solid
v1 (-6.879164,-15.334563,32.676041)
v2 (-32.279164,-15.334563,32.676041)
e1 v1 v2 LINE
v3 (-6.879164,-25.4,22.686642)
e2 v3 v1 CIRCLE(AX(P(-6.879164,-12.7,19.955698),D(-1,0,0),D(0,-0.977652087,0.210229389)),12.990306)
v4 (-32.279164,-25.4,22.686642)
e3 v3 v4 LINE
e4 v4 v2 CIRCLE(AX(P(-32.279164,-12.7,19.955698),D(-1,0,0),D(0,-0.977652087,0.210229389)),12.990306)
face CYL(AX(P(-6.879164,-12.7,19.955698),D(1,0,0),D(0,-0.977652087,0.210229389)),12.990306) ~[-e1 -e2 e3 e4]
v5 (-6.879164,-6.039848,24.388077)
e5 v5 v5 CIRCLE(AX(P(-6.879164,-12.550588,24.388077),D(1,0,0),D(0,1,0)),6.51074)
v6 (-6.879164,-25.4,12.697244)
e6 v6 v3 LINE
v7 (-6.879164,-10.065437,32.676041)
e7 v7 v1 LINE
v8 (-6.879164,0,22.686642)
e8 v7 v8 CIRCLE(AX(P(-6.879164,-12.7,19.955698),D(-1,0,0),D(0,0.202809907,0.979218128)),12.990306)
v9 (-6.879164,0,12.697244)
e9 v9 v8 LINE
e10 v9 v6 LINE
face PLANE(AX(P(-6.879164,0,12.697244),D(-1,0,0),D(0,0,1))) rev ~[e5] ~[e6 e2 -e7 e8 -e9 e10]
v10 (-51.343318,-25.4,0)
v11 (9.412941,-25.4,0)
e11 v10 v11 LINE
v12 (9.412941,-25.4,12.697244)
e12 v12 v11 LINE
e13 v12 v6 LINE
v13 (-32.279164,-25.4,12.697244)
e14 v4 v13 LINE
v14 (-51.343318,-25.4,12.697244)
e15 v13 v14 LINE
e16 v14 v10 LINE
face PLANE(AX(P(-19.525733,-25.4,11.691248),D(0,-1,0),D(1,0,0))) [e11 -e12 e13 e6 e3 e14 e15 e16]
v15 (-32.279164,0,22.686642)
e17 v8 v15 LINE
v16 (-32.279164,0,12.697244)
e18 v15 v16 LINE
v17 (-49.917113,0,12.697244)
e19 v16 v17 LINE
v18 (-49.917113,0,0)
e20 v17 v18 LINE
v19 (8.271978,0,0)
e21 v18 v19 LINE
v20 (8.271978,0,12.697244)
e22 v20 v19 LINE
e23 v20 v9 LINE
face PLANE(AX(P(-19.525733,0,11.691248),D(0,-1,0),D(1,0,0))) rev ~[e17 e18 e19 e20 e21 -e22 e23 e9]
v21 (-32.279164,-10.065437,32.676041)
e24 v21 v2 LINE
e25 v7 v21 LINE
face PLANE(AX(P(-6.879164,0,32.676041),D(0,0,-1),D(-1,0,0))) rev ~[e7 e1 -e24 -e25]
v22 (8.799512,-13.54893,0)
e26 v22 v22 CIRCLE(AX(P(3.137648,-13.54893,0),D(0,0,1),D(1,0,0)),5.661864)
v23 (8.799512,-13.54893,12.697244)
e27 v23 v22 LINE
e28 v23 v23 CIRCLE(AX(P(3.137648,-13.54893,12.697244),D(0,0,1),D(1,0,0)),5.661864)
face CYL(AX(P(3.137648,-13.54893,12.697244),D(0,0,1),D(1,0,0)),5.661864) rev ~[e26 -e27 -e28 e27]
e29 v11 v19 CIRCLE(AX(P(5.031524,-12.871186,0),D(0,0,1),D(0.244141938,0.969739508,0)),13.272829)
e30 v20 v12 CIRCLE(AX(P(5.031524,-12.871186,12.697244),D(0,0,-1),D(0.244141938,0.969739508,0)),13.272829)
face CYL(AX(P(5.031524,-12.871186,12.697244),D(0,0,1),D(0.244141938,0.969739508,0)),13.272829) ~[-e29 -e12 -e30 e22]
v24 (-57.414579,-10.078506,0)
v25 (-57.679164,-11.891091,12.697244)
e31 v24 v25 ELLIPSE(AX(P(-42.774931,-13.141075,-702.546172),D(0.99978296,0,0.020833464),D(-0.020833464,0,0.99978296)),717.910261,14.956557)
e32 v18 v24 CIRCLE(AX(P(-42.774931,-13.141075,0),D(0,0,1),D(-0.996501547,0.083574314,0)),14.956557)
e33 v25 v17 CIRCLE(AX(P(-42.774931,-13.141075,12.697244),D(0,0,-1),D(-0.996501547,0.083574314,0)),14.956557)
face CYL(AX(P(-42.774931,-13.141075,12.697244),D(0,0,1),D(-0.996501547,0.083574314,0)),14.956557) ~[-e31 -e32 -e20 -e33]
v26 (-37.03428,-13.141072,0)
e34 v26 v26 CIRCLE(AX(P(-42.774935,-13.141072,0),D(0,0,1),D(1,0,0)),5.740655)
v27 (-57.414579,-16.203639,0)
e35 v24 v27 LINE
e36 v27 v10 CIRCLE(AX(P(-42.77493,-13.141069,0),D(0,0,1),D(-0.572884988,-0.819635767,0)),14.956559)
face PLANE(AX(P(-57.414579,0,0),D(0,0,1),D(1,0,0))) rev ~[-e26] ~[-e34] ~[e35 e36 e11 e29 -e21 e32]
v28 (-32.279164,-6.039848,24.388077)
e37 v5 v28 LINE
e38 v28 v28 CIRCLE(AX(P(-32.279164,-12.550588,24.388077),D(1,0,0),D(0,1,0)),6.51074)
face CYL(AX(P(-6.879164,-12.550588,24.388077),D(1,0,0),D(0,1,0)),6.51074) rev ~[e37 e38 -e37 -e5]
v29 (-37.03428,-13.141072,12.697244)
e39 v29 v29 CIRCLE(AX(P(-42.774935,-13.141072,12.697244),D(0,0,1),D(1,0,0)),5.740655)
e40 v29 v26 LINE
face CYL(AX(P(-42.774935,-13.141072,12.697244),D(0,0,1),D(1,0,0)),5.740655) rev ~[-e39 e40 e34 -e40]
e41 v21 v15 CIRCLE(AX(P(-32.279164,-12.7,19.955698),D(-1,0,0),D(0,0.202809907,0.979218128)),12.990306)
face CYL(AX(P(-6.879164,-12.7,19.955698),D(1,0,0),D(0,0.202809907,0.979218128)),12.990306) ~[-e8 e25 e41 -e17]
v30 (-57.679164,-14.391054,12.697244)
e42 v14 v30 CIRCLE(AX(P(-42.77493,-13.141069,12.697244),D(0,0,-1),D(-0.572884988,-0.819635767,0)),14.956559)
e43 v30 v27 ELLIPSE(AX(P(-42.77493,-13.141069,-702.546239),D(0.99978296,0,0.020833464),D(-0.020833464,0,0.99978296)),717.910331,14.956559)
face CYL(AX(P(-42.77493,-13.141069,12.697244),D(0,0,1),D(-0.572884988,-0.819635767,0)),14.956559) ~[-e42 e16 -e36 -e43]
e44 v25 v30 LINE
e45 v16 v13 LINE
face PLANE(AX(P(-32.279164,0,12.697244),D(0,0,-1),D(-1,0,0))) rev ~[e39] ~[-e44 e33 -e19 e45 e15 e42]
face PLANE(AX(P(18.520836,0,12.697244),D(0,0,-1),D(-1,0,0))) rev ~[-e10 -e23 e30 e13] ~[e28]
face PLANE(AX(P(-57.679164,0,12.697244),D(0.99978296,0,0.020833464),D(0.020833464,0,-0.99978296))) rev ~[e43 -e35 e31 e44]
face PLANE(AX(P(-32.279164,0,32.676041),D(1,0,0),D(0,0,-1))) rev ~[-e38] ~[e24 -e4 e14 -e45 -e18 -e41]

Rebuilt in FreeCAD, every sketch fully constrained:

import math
import FreeCAD as App
import Part
import Sketcher
from FreeCAD import Vector
Q = App.Units.Quantity

doc = App.newDocument("Part")
body = doc.addObject("PartDesign::Body", "Body")

sketch1 = body.newObject("Sketcher::SketchObject", "Sketch")
sketch1.AttachmentSupport = (doc.getObject("XZ_Plane"), [""])
sketch1.MapMode = "FlatFace"
sketch1.addGeometry(Part.LineSegment(Vector(-57.679164, 12.697244, 0), Vector(-57.414579, 0, 0)), False)
sketch1.addGeometry(Part.LineSegment(Vector(-57.414579, 0, 0), Vector(18.520836, 0, 0)), False)
sketch1.addGeometry(Part.LineSegment(Vector(18.520836, 0, 0), Vector(18.520836, 12.697244, 0)), False)
sketch1.addGeometry(Part.LineSegment(Vector(18.520836, 12.697244, 0), Vector(-6.879164, 12.697244, 0)), False)
sketch1.addGeometry(Part.LineSegment(Vector(-6.879164, 12.697244, 0), Vector(-6.879164, 32.676041, 0)), False)
sketch1.addGeometry(Part.LineSegment(Vector(-6.879164, 32.676041, 0), Vector(-32.279164, 32.676041, 0)), False)
sketch1.addGeometry(Part.LineSegment(Vector(-32.279164, 32.676041, 0), Vector(-32.279164, 12.697244, 0)), False)
sketch1.addGeometry(Part.LineSegment(Vector(-32.279164, 12.697244, 0), Vector(-57.679164, 12.697244, 0)), False)
sketch1.addConstraint(Sketcher.Constraint("Coincident", 0, 2, 1, 1))
sketch1.addConstraint(Sketcher.Constraint("Coincident", 1, 2, 2, 1))
sketch1.addConstraint(Sketcher.Constraint("Coincident", 2, 2, 3, 1))
sketch1.addConstraint(Sketcher.Constraint("Coincident", 3, 2, 4, 1))
sketch1.addConstraint(Sketcher.Constraint("Coincident", 4, 2, 5, 1))
sketch1.addConstraint(Sketcher.Constraint("Coincident", 5, 2, 6, 1))
sketch1.addConstraint(Sketcher.Constraint("Coincident", 6, 2, 7, 1))
sketch1.addConstraint(Sketcher.Constraint("Coincident", 7, 2, 0, 1))
sketch1.addConstraint(Sketcher.Constraint("Horizontal", 1))
sketch1.addConstraint(Sketcher.Constraint("Vertical", 2))
sketch1.addConstraint(Sketcher.Constraint("Horizontal", 3))
sketch1.addConstraint(Sketcher.Constraint("Vertical", 4))
sketch1.addConstraint(Sketcher.Constraint("Horizontal", 5))
sketch1.addConstraint(Sketcher.Constraint("Vertical", 6))
sketch1.addConstraint(Sketcher.Constraint("Horizontal", 7))
sketch1.addConstraint(Sketcher.Constraint("PointOnObject", 0, 2, -1))
sketch1.addConstraint(Sketcher.Constraint("Horizontal", 3, 2, 6, 2))
sketch1.addConstraint(Sketcher.Constraint("Equal", 3, 5))
sketch1.addConstraint(Sketcher.Constraint("Equal", 5, 7))
sketch1.addConstraint(Sketcher.Constraint("DistanceX", 3, 2, 3, 1, Q("1 in")))
sketch1.addConstraint(Sketcher.Constraint("Distance", 0, Q("0.5 in")))
sketch1.addConstraint(Sketcher.Constraint("DistanceX", 1, 1, 1, 2, 75.935415))
sketch1.addConstraint(Sketcher.Constraint("DistanceY", 4, 1, 4, 2, 19.978797))
sketch1.addConstraint(Sketcher.Constraint("DistanceX", 0, 2, -1, 1, 57.414579))
pad1 = body.newObject("PartDesign::Pad", "Pad")
pad1.Profile = sketch1
pad1.Length = Q("1 in")

sketch2 = body.newObject("Sketcher::SketchObject", "Sketch001")
sketch2.AttachmentSupport = (doc.getObject("YZ_Plane"), [""])
sketch2.MapMode = "FlatFace"
sketch2.AttachmentOffset = App.Placement(Vector(0, 0, -6.879164), App.Rotation())
sketch2.addGeometry(Part.ArcOfCircle(Part.Circle(Vector(-12.7, 19.955698, 0), Vector(0, 0, 1), 12.990306), math.radians(101.701323), math.radians(167.864205)), False)
sketch2.addGeometry(Part.LineSegment(Vector(-15.334563, 32.676041, 0), Vector(-25.4, 32.676041, 0)), False)
sketch2.addGeometry(Part.LineSegment(Vector(-25.4, 32.676041, 0), Vector(-25.4, 22.686642, 0)), False)
sketch2.addGeometry(Part.ArcOfCircle(Part.Circle(Vector(-12.7, 19.955698, 0), Vector(0, 0, 1), 12.990306), math.radians(12.135795), math.radians(78.298677)), False)
sketch2.addGeometry(Part.LineSegment(Vector(0, 22.686642, 0), Vector(0, 32.676041, 0)), False)
sketch2.addGeometry(Part.LineSegment(Vector(0, 32.676041, 0), Vector(-10.065437, 32.676041, 0)), False)
sketch2.addConstraint(Sketcher.Constraint("Coincident", 0, 1, 1, 1))
sketch2.addConstraint(Sketcher.Constraint("Coincident", 1, 2, 2, 1))
sketch2.addConstraint(Sketcher.Constraint("Coincident", 2, 2, 0, 2))
sketch2.addConstraint(Sketcher.Constraint("Coincident", 3, 1, 4, 1))
sketch2.addConstraint(Sketcher.Constraint("Coincident", 4, 2, 5, 1))
sketch2.addConstraint(Sketcher.Constraint("Coincident", 5, 2, 3, 2))
sketch2.addConstraint(Sketcher.Constraint("Horizontal", 1))
sketch2.addConstraint(Sketcher.Constraint("Vertical", 2))
sketch2.addConstraint(Sketcher.Constraint("Vertical", 4))
sketch2.addConstraint(Sketcher.Constraint("Horizontal", 5))
sketch2.addConstraint(Sketcher.Constraint("Coincident", 3, 3, 0, 3))
sketch2.addConstraint(Sketcher.Constraint("Equal", 0, 3))
sketch2.addConstraint(Sketcher.Constraint("PointOnObject", 3, 1, -2))
sketch2.addConstraint(Sketcher.Constraint("Horizontal", 2, 2, 3, 1))
sketch2.addConstraint(Sketcher.Constraint("Horizontal", 1, 2, 4, 2))
sketch2.addConstraint(Sketcher.Constraint("DistanceX", 1, 2, -1, 1, Q("1 in")))
sketch2.addConstraint(Sketcher.Constraint("DistanceY", 2, 2, 2, 1, 9.989399))
sketch2.addConstraint(Sketcher.Constraint("Radius", 0, 12.990306))
sketch2.addConstraint(Sketcher.Constraint("DistanceY", -1, 1, 0, 1, 32.676041))
pocket1 = body.newObject("PartDesign::Pocket", "Pocket")
pocket1.Profile = sketch2
pocket1.Length = Q("1 in")

sketch3 = body.newObject("Sketcher::SketchObject", "Sketch002")
sketch3.AttachmentSupport = (doc.getObject("XY_Plane"), [""])
sketch3.MapMode = "FlatFace"
sketch3.AttachmentOffset = App.Placement(Vector(0, 0, 12.697244), App.Rotation())
sketch3.addGeometry(Part.ArcOfCircle(Part.Circle(Vector(-42.774931, -13.141075, 0), Vector(0, 0, 1), 14.956558), math.radians(118.524105), math.radians(175.205953)), False)
sketch3.addGeometry(Part.LineSegment(Vector(-49.917113, 0, 0), Vector(-57.679164, 0, 0)), False)
sketch3.addGeometry(Part.LineSegment(Vector(-57.679164, 0, 0), Vector(-57.679164, -11.891091, 0)), False)
sketch3.addGeometry(Part.ArcOfCircle(Part.Circle(Vector(-42.77493, -13.141069, 0), Vector(0, 0, 1), 14.956559), math.radians(-175.205951), math.radians(-124.951651)), False)
sketch3.addGeometry(Part.LineSegment(Vector(-57.679164, -14.391054, 0), Vector(-57.679164, -25.4, 0)), False)
sketch3.addGeometry(Part.LineSegment(Vector(-57.679164, -25.4, 0), Vector(-51.343318, -25.4, 0)), False)
sketch3.addConstraint(Sketcher.Constraint("Coincident", 0, 1, 1, 1))
sketch3.addConstraint(Sketcher.Constraint("Coincident", 1, 2, 2, 1))
sketch3.addConstraint(Sketcher.Constraint("Coincident", 2, 2, 0, 2))
sketch3.addConstraint(Sketcher.Constraint("Coincident", 3, 1, 4, 1))
sketch3.addConstraint(Sketcher.Constraint("Coincident", 4, 2, 5, 1))
sketch3.addConstraint(Sketcher.Constraint("Coincident", 5, 2, 3, 2))
sketch3.addConstraint(Sketcher.Constraint("Horizontal", 1))
sketch3.addConstraint(Sketcher.Constraint("Vertical", 2))
sketch3.addConstraint(Sketcher.Constraint("Vertical", 4))
sketch3.addConstraint(Sketcher.Constraint("Horizontal", 5))
sketch3.addConstraint(Sketcher.Constraint("Coincident", 3, 3, 0, 3))
sketch3.addConstraint(Sketcher.Constraint("Equal", 0, 3))
sketch3.addConstraint(Sketcher.Constraint("PointOnObject", 0, 1, -1))
sketch3.addConstraint(Sketcher.Constraint("Vertical", 2, 2, 3, 1))
sketch3.addConstraint(Sketcher.Constraint("DistanceY", 4, 2, -1, 1, Q("1 in")))
sketch3.addConstraint(Sketcher.Constraint("Radius", 3, 14.956559))
sketch3.addConstraint(Sketcher.Constraint("DistanceX", 1, 2, 1, 1, 7.762051))
sketch3.addConstraint(Sketcher.Constraint("DistanceY", 2, 2, 2, 1, 11.891091))
sketch3.addConstraint(Sketcher.Constraint("DistanceX", 0, 3, -1, 1, 42.774931))
pocket2 = body.newObject("PartDesign::Pocket", "Pocket001")
pocket2.Profile = sketch3
pocket2.Length = Q("1 in")

sketch4 = body.newObject("Sketcher::SketchObject", "Sketch003")
sketch4.AttachmentSupport = (doc.getObject("XY_Plane"), [""])
sketch4.MapMode = "FlatFace"
sketch4.AttachmentOffset = App.Placement(Vector(0, 0, 12.697244), App.Rotation())
sketch4.addGeometry(Part.ArcOfCircle(Part.Circle(Vector(5.031524, -12.871186, 0), Vector(0, 0, 1), 13.272829), math.radians(-70.724897), math.radians(75.868869)), False)
sketch4.addGeometry(Part.LineSegment(Vector(9.412941, -25.4, 0), Vector(18.520836, -25.4, 0)), False)
sketch4.addGeometry(Part.LineSegment(Vector(18.520836, -25.4, 0), Vector(18.520836, 0, 0)), False)
sketch4.addGeometry(Part.LineSegment(Vector(18.520836, 0, 0), Vector(8.271978, 0, 0)), False)
sketch4.addConstraint(Sketcher.Constraint("Coincident", 0, 1, 1, 1))
sketch4.addConstraint(Sketcher.Constraint("Coincident", 1, 2, 2, 1))
sketch4.addConstraint(Sketcher.Constraint("Coincident", 2, 2, 3, 1))
sketch4.addConstraint(Sketcher.Constraint("Coincident", 3, 2, 0, 2))
sketch4.addConstraint(Sketcher.Constraint("Horizontal", 1))
sketch4.addConstraint(Sketcher.Constraint("Vertical", 2))
sketch4.addConstraint(Sketcher.Constraint("Horizontal", 3))
sketch4.addConstraint(Sketcher.Constraint("PointOnObject", 2, 2, -1))
sketch4.addConstraint(Sketcher.Constraint("DistanceY", 2, 1, 2, 2, Q("1 in")))
sketch4.addConstraint(Sketcher.Constraint("Radius", 0, 13.272829))
sketch4.addConstraint(Sketcher.Constraint("DistanceX", 1, 1, 1, 2, 9.107895))
sketch4.addConstraint(Sketcher.Constraint("DistanceX", 3, 2, 3, 1, 10.248858))
sketch4.addConstraint(Sketcher.Constraint("DistanceX", -1, 1, 0, 1, 9.412941))
pocket3 = body.newObject("PartDesign::Pocket", "Pocket002")
pocket3.Profile = sketch4
pocket3.Length = Q("1 in")

sketch5 = body.newObject("Sketcher::SketchObject", "Sketch004")
sketch5.AttachmentSupport = (doc.getObject("XY_Plane"), [""])
sketch5.MapMode = "FlatFace"
sketch5.AttachmentOffset = App.Placement(Vector(0, 0, 12.697244), App.Rotation())
sketch5.addGeometry(Part.Circle(Vector(3.137648, -13.54893, 0), Vector(0, 0, 1), 5.661864), False)
sketch5.addGeometry(Part.Circle(Vector(-42.774935, -13.141072, 0), Vector(0, 0, 1), 5.740655), False)
sketch5.addConstraint(Sketcher.Constraint("Diameter", 1, 11.48131))
sketch5.addConstraint(Sketcher.Constraint("Diameter", 0, 11.323728))
sketch5.addConstraint(Sketcher.Constraint("DistanceX", -1, 1, 0, 3, 3.137648))
sketch5.addConstraint(Sketcher.Constraint("DistanceY", 0, 3, -1, 1, 13.54893))
sketch5.addConstraint(Sketcher.Constraint("DistanceY", 0, 3, 1, 3, 0.407858))
sketch5.addConstraint(Sketcher.Constraint("DistanceX", 1, 3, -1, 1, 42.774935))
pocket4 = body.newObject("PartDesign::Pocket", "Pocket003")
pocket4.Profile = sketch5
pocket4.Length = Q("1 in")

sketch6 = body.newObject("Sketcher::SketchObject", "Sketch005")
sketch6.AttachmentSupport = (doc.getObject("YZ_Plane"), [""])
sketch6.MapMode = "FlatFace"
sketch6.AttachmentOffset = App.Placement(Vector(0, 0, -6.879164), App.Rotation())
sketch6.addGeometry(Part.Circle(Vector(-12.550588, 24.388077, 0), Vector(0, 0, 1), 6.51074), False)
sketch6.addConstraint(Sketcher.Constraint("Diameter", 0, 13.02148))
sketch6.addConstraint(Sketcher.Constraint("DistanceX", 0, 3, -1, 1, 12.550588))
sketch6.addConstraint(Sketcher.Constraint("DistanceY", -1, 1, 0, 3, 24.388077))
pocket5 = body.newObject("PartDesign::Pocket", "Pocket004")
pocket5.Profile = sketch6
pocket5.Length = Q("1 in")

doc.recompute()
